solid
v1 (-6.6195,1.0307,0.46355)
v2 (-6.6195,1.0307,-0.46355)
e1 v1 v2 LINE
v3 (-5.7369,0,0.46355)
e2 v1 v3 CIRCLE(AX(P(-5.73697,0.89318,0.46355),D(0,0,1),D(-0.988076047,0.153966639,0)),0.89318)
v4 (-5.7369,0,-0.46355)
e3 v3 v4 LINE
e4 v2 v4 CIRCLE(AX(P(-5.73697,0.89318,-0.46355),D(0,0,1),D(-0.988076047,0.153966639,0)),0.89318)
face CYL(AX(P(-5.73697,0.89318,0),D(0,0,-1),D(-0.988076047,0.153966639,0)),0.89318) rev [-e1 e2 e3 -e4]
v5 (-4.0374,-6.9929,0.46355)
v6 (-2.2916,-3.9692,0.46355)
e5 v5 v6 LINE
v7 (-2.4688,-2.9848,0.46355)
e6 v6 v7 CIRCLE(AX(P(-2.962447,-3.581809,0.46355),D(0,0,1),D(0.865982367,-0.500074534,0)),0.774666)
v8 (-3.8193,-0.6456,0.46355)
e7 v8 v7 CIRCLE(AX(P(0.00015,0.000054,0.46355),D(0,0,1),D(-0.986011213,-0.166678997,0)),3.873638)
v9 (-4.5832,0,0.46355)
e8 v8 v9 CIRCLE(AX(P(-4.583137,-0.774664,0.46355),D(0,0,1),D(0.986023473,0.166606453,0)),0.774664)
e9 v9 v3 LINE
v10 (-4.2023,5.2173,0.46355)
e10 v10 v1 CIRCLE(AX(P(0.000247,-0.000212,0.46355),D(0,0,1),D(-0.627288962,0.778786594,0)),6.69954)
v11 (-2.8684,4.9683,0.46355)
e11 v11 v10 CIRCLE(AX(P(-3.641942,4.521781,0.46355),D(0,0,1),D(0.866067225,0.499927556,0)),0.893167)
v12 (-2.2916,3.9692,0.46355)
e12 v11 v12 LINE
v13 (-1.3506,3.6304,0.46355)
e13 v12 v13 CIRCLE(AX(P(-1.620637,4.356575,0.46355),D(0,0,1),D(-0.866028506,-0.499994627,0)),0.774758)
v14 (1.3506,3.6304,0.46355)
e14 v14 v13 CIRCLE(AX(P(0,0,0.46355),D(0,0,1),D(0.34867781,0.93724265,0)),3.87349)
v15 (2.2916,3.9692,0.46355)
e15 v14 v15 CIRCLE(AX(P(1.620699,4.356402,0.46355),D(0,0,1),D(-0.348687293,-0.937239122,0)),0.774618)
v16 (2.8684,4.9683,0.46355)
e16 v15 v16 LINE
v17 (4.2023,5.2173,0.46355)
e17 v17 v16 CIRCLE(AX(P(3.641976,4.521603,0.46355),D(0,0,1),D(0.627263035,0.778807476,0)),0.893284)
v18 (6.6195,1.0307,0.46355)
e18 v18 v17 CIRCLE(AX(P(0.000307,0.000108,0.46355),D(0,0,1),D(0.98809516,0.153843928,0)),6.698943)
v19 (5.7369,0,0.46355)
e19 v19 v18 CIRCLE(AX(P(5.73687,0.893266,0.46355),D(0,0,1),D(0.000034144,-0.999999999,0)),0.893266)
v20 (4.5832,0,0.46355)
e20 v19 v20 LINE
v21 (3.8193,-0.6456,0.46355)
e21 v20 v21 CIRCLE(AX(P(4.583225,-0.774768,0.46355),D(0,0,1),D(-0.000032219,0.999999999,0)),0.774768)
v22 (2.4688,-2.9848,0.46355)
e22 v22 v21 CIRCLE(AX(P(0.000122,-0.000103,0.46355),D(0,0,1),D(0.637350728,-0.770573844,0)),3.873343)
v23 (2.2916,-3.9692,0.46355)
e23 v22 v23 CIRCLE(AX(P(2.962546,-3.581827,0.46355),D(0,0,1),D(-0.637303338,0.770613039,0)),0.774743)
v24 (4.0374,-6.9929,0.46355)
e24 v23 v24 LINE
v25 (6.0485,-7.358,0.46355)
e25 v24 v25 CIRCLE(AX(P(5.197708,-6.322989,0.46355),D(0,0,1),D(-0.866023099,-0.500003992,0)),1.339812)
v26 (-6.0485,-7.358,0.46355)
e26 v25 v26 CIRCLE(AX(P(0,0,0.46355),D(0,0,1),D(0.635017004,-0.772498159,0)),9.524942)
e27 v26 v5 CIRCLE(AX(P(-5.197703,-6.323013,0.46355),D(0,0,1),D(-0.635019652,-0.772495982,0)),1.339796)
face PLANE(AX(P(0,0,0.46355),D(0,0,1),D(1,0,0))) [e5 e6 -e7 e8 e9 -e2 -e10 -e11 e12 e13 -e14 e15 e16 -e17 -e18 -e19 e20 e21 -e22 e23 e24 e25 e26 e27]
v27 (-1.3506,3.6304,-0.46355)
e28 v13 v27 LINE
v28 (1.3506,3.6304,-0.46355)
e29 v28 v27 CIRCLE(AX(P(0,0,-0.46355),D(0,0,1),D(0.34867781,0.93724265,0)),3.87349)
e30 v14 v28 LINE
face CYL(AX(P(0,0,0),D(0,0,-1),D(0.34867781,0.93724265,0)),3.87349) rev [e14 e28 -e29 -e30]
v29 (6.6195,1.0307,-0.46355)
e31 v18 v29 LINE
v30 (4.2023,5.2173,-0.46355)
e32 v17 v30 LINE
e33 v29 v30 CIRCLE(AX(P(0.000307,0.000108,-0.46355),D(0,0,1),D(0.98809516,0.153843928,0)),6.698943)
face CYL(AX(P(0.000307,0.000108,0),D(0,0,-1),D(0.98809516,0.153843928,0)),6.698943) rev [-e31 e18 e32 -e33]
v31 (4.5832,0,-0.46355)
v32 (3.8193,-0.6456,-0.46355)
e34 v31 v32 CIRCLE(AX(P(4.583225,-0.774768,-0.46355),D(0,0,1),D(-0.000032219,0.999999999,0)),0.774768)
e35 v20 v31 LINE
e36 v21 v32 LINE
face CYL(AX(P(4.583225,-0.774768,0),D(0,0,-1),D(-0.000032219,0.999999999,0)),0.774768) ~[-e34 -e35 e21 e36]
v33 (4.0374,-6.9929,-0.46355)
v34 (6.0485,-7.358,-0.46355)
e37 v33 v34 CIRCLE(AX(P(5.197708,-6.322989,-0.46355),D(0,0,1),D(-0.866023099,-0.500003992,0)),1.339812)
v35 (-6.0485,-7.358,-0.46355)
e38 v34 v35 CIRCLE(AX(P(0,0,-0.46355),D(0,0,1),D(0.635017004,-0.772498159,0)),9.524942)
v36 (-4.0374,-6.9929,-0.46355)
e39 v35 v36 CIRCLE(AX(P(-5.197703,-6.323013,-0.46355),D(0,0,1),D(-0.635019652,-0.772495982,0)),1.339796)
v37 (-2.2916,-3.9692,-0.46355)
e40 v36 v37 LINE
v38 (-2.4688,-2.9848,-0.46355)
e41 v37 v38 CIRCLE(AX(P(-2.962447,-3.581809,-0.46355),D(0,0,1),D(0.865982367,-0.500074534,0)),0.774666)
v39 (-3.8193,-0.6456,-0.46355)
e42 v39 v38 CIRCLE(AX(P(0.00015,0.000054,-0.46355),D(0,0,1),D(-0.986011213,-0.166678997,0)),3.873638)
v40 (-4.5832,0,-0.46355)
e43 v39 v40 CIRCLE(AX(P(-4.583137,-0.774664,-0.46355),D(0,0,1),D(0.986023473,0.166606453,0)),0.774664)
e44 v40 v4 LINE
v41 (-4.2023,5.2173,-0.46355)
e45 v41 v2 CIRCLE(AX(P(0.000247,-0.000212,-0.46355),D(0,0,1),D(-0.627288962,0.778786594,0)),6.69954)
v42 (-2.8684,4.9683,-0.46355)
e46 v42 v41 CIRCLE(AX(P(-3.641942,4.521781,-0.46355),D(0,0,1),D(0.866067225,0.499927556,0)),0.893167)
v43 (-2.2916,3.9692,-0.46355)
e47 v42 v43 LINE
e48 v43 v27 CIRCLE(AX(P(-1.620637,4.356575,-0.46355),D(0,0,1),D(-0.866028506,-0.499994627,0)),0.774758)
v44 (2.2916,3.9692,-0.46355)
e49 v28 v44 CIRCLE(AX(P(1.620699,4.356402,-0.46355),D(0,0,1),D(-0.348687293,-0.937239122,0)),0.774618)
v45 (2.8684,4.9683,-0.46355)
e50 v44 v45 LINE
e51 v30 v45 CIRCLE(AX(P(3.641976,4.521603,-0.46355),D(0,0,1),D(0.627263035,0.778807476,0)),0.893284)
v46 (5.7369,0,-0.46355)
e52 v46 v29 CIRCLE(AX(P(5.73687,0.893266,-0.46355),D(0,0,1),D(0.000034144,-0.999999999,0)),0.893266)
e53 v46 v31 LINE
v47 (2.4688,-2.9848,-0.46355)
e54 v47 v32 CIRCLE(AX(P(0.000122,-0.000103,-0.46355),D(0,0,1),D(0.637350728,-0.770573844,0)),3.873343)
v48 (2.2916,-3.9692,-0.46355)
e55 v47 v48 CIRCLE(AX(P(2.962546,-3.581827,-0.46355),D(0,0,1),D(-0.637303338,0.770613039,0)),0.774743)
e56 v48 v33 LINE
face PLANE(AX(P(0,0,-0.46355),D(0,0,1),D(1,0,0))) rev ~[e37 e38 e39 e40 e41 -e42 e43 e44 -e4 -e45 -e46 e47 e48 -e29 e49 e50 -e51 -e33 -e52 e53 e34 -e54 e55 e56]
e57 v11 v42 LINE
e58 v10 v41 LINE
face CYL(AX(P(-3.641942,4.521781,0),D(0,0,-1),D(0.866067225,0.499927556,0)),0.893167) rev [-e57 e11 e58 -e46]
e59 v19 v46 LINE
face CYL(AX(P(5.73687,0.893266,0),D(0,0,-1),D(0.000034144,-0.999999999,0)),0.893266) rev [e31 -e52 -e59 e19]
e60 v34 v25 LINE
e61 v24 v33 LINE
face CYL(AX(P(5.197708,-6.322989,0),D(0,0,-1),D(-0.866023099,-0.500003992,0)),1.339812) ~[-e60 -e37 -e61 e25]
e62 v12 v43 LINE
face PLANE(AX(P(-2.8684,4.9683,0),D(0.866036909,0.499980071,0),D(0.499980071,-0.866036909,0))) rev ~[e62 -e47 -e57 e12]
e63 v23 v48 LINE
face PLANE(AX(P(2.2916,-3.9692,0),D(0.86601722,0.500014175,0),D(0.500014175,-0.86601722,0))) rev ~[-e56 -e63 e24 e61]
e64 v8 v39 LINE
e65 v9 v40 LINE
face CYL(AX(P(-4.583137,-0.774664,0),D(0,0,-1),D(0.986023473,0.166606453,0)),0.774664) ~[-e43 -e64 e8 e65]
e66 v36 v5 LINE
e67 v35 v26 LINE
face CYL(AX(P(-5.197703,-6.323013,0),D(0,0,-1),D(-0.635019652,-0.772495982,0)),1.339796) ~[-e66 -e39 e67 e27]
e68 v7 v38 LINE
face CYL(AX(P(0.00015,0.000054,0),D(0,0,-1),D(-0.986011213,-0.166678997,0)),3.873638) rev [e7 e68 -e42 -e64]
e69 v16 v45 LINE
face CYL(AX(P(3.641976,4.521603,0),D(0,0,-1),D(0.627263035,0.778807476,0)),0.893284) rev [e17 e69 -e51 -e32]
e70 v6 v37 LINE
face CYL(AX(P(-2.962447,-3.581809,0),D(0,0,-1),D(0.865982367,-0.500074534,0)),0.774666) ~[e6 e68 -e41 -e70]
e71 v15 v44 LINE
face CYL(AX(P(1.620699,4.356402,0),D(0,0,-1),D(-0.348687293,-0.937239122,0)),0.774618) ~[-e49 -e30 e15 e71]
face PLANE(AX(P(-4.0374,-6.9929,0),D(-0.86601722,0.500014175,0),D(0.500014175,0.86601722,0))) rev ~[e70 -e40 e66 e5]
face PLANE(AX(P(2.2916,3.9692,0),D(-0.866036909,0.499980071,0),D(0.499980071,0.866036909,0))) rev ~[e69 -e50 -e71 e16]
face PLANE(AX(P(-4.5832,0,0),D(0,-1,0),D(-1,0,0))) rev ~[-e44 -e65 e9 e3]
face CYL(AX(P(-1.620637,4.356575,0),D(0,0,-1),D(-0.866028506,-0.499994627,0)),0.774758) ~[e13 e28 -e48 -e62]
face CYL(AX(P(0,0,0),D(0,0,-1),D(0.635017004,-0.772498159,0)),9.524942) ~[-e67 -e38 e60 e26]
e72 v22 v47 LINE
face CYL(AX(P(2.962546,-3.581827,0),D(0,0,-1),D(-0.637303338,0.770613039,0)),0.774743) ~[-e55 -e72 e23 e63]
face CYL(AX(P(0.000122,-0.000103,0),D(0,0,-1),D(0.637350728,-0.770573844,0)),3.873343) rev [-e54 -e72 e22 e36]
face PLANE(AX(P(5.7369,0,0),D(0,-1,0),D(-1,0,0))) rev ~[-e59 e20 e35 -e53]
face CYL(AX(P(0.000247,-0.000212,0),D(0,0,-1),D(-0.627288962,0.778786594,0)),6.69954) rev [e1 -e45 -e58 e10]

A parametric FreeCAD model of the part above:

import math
import FreeCAD as App
import Part
import Sketcher
Q = App.Units.Quantity

doc = App.newDocument("Part")
body = doc.addObject("PartDesign::Body", "Body")

sketch1 = body.newObject("Sketcher::SketchObject", "Sketch")
sketch1.AttachmentSupport = (doc.getObject("XY_Plane"), [""])
sketch1.MapMode = "FlatFace"
sketch1.addGeometry([
    Part.ArcOfCircle(Part.Circle(App.Vector(5.2, -6.3, 0), App.Vector(0, 0, 1), 1.3), math.radians(-150), math.radians(-51)),
    Part.ArcOfCircle(Part.Circle(App.Vector(0, 0, 0), App.Vector(0, 0, 1), 9.5), math.radians(-51), math.radians(231)),
    Part.ArcOfCircle(Part.Circle(App.Vector(-5.2, -6.3, 0), App.Vector(0, 0, 1), 1.3), math.radians(-129), math.radians(-30)),
    Part.LineSegment(App.Vector(-4, -7, 0), App.Vector(-2.3, -4, 0)),
    Part.ArcOfCircle(Part.Circle(App.Vector(-3, -3.6, 0), App.Vector(0, 0, 1), 0.8), math.radians(-30), math.radians(50)),
    Part.ArcOfCircle(Part.Circle(App.Vector(0, 0, 0), App.Vector(0, 0, 1), 3.9), math.radians(-170), math.radians(-130)),
    Part.ArcOfCircle(Part.Circle(App.Vector(-4.6, -0.8, 0), App.Vector(0, 0, 1), 0.8), math.radians(10), math.radians(90)),
    Part.LineSegment(App.Vector(-4.6, 0, 0), App.Vector(-5.7, 0, 0)),
    Part.ArcOfCircle(Part.Circle(App.Vector(-5.7, 0.9, 0), App.Vector(0, 0, 1), 0.9), math.radians(171), math.radians(270)),
    Part.ArcOfCircle(Part.Circle(App.Vector(0, 0, 0), App.Vector(0, 0, 1), 6.7), math.radians(129), math.radians(171)),
    Part.ArcOfCircle(Part.Circle(App.Vector(-3.6, 4.5, 0), App.Vector(0, 0, 1), 0.9), math.radians(30), math.radians(129)),
    Part.LineSegment(App.Vector(-2.9, 5, 0), App.Vector(-2.3, 4, 0)),
    Part.ArcOfCircle(Part.Circle(App.Vector(-1.6, 4.4, 0), App.Vector(0, 0, 1), 0.8), math.radians(-150), math.radians(-70)),
    Part.ArcOfCircle(Part.Circle(App.Vector(0, 0, 0), App.Vector(0, 0, 1), 3.9), math.radians(70), math.radians(110)),
    Part.ArcOfCircle(Part.Circle(App.Vector(1.6, 4.4, 0), App.Vector(0, 0, 1), 0.8), math.radians(-110), math.radians(-30)),
    Part.LineSegment(App.Vector(2.3, 4, 0), App.Vector(2.9, 5, 0)),
    Part.ArcOfCircle(Part.Circle(App.Vector(3.6, 4.5, 0), App.Vector(0, 0, 1), 0.9), math.radians(51), math.radians(150)),
    Part.ArcOfCircle(Part.Circle(App.Vector(0, 0, 0), App.Vector(0, 0, 1), 6.7), math.radians(9), math.radians(51)),
    Part.ArcOfCircle(Part.Circle(App.Vector(5.7, 0.9, 0), App.Vector(0, 0, 1), 0.9), math.radians(-90), math.radians(9)),
    Part.LineSegment(App.Vector(5.7, 0, 0), App.Vector(4.6, 0, 0)),
    Part.ArcOfCircle(Part.Circle(App.Vector(4.6, -0.8, 0), App.Vector(0, 0, 1), 0.8), math.radians(90), math.radians(170)),
    Part.ArcOfCircle(Part.Circle(App.Vector(0, 0, 0), App.Vector(0, 0, 1), 3.9), math.radians(-50), math.radians(-10)),
    Part.ArcOfCircle(Part.Circle(App.Vector(3, -3.6, 0), App.Vector(0, 0, 1), 0.8), math.radians(130), math.radians(210)),
    Part.LineSegment(App.Vector(2.3, -4, 0), App.Vector(4, -7, 0)),
], False)
sketch1.addConstraint([
    Sketcher.Constraint("Tangent", 0, 2, 1, 1),
    Sketcher.Constraint("Tangent", 1, 2, 2, 1),
    Sketcher.Constraint("Tangent", 2, 2, 3, 1),
    Sketcher.Constraint("Tangent", 3, 2, 4, 1),
    Sketcher.Constraint("Tangent", 4, 2, 5, 2),
    Sketcher.Constraint("Tangent", 5, 1, 6, 1),
    Sketcher.Constraint("Tangent", 6, 2, 7, 1),
    Sketcher.Constraint("Tangent", 7, 2, 8, 2),
    Sketcher.Constraint("Tangent", 8, 1, 9, 2),
    Sketcher.Constraint("Tangent", 9, 1, 10, 2),
    Sketcher.Constraint("Tangent", 10, 1, 11, 1),
    Sketcher.Constraint("Tangent", 11, 2, 12, 1),
    Sketcher.Constraint("Tangent", 12, 2, 13, 2),
    Sketcher.Constraint("Tangent", 13, 1, 14, 1),
    Sketcher.Constraint("Tangent", 14, 2, 15, 1),
    Sketcher.Constraint("Tangent", 15, 2, 16, 2),
    Sketcher.Constraint("Tangent", 16, 1, 17, 2),
    Sketcher.Constraint("Tangent", 17, 1, 18, 2),
    Sketcher.Constraint("Tangent", 18, 1, 19, 1),
    Sketcher.Constraint("Tangent", 19, 2, 20, 1),
    Sketcher.Constraint("Tangent", 20, 2, 21, 2),
    Sketcher.Constraint("Tangent", 21, 1, 22, 1),
    Sketcher.Constraint("Tangent", 22, 2, 23, 1),
    Sketcher.Constraint("Tangent", 23, 2, 0, 1),
    Sketcher.Constraint("Horizontal", 7),
    Sketcher.Constraint("Horizontal", 19),
    Sketcher.Constraint("Coincident", 1, 3, -1, 1),
    Sketcher.Constraint("Coincident", 5, 3, -1, 1),
    Sketcher.Constraint("Coincident", 9, 3, -1, 1),
    Sketcher.Constraint("Coincident", 13, 3, -1, 1),
    Sketcher.Constraint("Coincident", 17, 3, -1, 1),
    Sketcher.Constraint("Coincident", 21, 3, -1, 1),
    Sketcher.Constraint("Equal", 0, 2),
    Sketcher.Constraint("Equal", 4, 6),
    Sketcher.Constraint("Equal", 8, 10),
    Sketcher.Constraint("Equal", 6, 12),
    Sketcher.Constraint("Equal", 5, 13),
    Sketcher.Constraint("Equal", 12, 14),
    Sketcher.Constraint("Equal", 10, 16),
    Sketcher.Constraint("Equal", 9, 17),
    Sketcher.Constraint("Equal", 16, 18),
    Sketcher.Constraint("Equal", 14, 20),
    Sketcher.Constraint("Equal", 13, 21),
    Sketcher.Constraint("Equal", 20, 22),
    Sketcher.Constraint("Symmetric", 3, 2, 14, 2, -1, 1),
    Sketcher.Constraint("Symmetric", 7, 2, 18, 1, -1, 1),
    Sketcher.Constraint("Symmetric", 11, 2, 22, 2, -1, 1),
    Sketcher.Constraint("Symmetric", 11, 2, 14, 2, -2),
    Sketcher.Constraint("Parallel", 3, 15),
    Sketcher.Constraint("Angle", 3, Q("59.999 deg")),
    Sketcher.Constraint("Radius", 1, Q("0.375 in")),
    Sketcher.Constraint("Radius", 4, Q("0.0305 in")),
    Sketcher.Constraint("Radius", 5, Q("0.1525 in")),
    Sketcher.Constraint("Radius", 0, Q("1.3398 mm")),
    Sketcher.Constraint("Radius", 8, Q("0.8932 mm")),
    Sketcher.Constraint("Radius", 9, Q("6.6993 mm")),
])
pad1 = body.newObject("PartDesign::Pad", "Pad")
pad1.Profile = sketch1
pad1.Length = Q("0.0365 in")
pad1.Midplane = True

doc.recompute()
